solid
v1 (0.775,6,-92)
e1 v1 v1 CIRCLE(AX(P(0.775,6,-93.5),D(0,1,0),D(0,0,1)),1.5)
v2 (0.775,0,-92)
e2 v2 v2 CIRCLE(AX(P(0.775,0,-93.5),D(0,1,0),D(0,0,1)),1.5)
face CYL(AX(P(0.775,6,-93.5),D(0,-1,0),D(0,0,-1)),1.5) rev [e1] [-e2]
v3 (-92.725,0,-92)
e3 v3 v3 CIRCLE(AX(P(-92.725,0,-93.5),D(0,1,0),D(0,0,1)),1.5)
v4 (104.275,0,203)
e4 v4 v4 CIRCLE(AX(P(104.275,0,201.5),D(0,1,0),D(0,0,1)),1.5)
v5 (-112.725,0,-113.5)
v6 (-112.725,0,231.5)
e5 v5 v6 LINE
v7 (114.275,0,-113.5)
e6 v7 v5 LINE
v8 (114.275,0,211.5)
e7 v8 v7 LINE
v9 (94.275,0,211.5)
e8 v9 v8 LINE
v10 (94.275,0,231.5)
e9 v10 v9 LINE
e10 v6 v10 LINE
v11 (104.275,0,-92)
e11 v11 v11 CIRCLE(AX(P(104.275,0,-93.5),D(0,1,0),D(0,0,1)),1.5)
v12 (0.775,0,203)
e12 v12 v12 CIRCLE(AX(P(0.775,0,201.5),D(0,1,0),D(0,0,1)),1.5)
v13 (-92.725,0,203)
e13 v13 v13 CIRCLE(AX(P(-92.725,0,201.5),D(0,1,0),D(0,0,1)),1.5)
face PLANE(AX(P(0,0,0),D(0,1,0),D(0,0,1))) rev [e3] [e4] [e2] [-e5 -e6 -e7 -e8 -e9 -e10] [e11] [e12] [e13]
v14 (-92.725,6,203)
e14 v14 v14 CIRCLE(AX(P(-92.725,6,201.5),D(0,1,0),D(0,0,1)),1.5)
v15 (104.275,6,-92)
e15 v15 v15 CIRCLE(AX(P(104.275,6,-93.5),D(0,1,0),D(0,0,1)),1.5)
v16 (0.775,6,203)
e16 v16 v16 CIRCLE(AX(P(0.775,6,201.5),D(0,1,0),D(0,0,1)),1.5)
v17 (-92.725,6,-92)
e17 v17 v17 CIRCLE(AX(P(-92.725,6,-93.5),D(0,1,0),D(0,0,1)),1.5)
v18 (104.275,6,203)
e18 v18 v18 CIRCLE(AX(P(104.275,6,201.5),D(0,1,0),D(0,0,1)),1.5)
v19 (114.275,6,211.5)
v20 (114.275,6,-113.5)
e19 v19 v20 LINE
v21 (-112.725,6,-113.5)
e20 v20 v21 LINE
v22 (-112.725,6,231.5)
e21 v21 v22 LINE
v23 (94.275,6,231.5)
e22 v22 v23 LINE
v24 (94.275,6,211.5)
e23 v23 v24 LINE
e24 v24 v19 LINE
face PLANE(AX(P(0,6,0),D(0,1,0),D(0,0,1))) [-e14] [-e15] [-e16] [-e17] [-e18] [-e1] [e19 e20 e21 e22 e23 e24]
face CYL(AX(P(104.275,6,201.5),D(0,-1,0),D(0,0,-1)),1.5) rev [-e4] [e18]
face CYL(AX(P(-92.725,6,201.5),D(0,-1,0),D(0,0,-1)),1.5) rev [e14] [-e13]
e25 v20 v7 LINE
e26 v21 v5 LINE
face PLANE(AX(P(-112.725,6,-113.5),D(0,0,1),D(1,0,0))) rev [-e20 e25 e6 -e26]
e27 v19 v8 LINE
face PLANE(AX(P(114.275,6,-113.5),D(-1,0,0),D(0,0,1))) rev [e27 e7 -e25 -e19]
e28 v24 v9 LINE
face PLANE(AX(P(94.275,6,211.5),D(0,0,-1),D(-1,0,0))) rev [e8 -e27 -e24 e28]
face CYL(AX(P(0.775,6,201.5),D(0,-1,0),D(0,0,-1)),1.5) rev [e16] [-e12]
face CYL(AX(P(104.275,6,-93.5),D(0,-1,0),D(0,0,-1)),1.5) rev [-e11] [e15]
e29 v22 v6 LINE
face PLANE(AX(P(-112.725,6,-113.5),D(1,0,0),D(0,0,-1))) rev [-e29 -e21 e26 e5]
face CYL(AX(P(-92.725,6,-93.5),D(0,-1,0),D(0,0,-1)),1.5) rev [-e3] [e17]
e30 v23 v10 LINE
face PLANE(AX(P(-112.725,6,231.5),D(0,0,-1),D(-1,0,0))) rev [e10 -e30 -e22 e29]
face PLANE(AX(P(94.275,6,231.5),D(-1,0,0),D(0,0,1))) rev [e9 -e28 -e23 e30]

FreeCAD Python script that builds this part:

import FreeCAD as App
import Part
import Sketcher
Q = App.Units.Quantity


def add_polygon(sketch, points):
    """Adds a closed chain of lines whose ends are joined by coincident constraints."""
    first, n = sketch.GeometryCount, len(points)
    for a, b in zip(points, points[1:] + points[:1]):
        sketch.addGeometry(Part.LineSegment(App.Vector(*a, 0), App.Vector(*b, 0)), False)
    for i in range(n):
        sketch.addConstraint(Sketcher.Constraint("Coincident", first + i, 2, first + (i + 1) % n, 1))

doc = App.newDocument("Part")
params = doc.addObject("Spreadsheet::Sheet", "Params")
for row, (alias, value) in enumerate([
    ("sketch1_diameter", "3 mm"),
    ("sketch1_width", "227 mm"),
    ("sketch1_width2", "207 mm"),
    ("sketch1_height", "345 mm"),
    ("pad1_length", "6 mm"),
], start=1):
    params.set(f"A{row}", alias)
    params.set(f"B{row}", "=" + value)
    params.setAlias(f"B{row}", alias)

body = doc.addObject("PartDesign::Body", "Body")

# Sketch on XZ plane
sketch1 = body.newObject("Sketcher::SketchObject", "Sketch")
sketch1.AttachmentSupport = (doc.getObject("XZ_Plane"), [""])
sketch1.MapMode = "FlatFace"
add_polygon(sketch1, [(114.275, -113.5), (-112.725, -113.5), (-112.725, 231.5), (94.275, 231.5), (94.275, 211.5), (114.275, 211.5)])  # lines 0-5
sketch1.addGeometry(Part.Circle(App.Vector(104.275, 201.5, 0), App.Vector(0, 0, 1), 1.5), False)  # 6
sketch1.addGeometry(Part.Circle(App.Vector(0.775, 201.5, 0), App.Vector(0, 0, 1), 1.5), False)  # 7
sketch1.addGeometry(Part.Circle(App.Vector(-92.725, 201.5, 0), App.Vector(0, 0, 1), 1.5), False)  # 8
sketch1.addGeometry(Part.Circle(App.Vector(104.275, -93.5, 0), App.Vector(0, 0, 1), 1.5), False)  # 9
sketch1.addGeometry(Part.Circle(App.Vector(0.775, -93.5, 0), App.Vector(0, 0, 1), 1.5), False)  # 10
sketch1.addGeometry(Part.Circle(App.Vector(-92.725, -93.5, 0), App.Vector(0, 0, 1), 1.5), False)  # 11
sketch1.addConstraint([
    Sketcher.Constraint("Horizontal", 0),
    Sketcher.Constraint("Vertical", 1),
    Sketcher.Constraint("Horizontal", 2),
    Sketcher.Constraint("Vertical", 3),
    Sketcher.Constraint("Horizontal", 4),
    Sketcher.Constraint("Vertical", 5),
    Sketcher.Constraint("Equal", 6, 7),
    Sketcher.Constraint("Equal", 7, 8),
    Sketcher.Constraint("Equal", 8, 9),
    Sketcher.Constraint("Equal", 9, 10),
    Sketcher.Constraint("Equal", 10, 11),
    Sketcher.Constraint("Horizontal", 6, 3, 7, 3),
    Sketcher.Constraint("Horizontal", 7, 3, 8, 3),
    Sketcher.Constraint("Horizontal", 9, 3, 10, 3),
    Sketcher.Constraint("Horizontal", 10, 3, 11, 3),
    Sketcher.Constraint("Vertical", 6, 3, 9, 3),
    Sketcher.Constraint("Vertical", 7, 3, 10, 3),
    Sketcher.Constraint("Vertical", 8, 3, 11, 3),
    Sketcher.Constraint("Equal", 4, 3),
    Sketcher.Constraint("Diameter", 6, Q("3 mm")),
    Sketcher.Constraint("DistanceX", 0, 2, 0, 1, Q("227 mm")),
    Sketcher.Constraint("DistanceX", 2, 1, 2, 2, Q("207 mm")),
    Sketcher.Constraint("DistanceY", 1, 1, 1, 2, Q("345 mm")),
    Sketcher.Constraint("DistanceX", 8, 3, 6, 3, Q("197 mm")),
    Sketcher.Constraint("DistanceY", 9, 3, 6, 3, Q("295 mm")),
    Sketcher.Constraint("DistanceX", 0, 2, 11, 3, Q("20 mm")),
    Sketcher.Constraint("DistanceY", 0, 2, 11, 3, Q("20 mm")),
    Sketcher.Constraint("DistanceY", -1, 1, 6, 3, Q("201.5 mm")),
    Sketcher.Constraint("DistanceX", 7, 3, 6, 3, Q("103.5 mm")),
    Sketcher.Constraint("DistanceX", -1, 1, 6, 3, Q("104.275 mm")),
])
sketch1.setExpression("Constraints[25]", "Params.sketch1_diameter")
sketch1.setExpression("Constraints[26]", "Params.sketch1_width")
sketch1.setExpression("Constraints[27]", "Params.sketch1_width2")
sketch1.setExpression("Constraints[28]", "Params.sketch1_height")
pad1 = body.newObject("PartDesign::Pad", "Pad")
pad1.Profile = sketch1
pad1.setExpression("Length", "Params.pad1_length")
pad1.Reversed = True

doc.recompute()
